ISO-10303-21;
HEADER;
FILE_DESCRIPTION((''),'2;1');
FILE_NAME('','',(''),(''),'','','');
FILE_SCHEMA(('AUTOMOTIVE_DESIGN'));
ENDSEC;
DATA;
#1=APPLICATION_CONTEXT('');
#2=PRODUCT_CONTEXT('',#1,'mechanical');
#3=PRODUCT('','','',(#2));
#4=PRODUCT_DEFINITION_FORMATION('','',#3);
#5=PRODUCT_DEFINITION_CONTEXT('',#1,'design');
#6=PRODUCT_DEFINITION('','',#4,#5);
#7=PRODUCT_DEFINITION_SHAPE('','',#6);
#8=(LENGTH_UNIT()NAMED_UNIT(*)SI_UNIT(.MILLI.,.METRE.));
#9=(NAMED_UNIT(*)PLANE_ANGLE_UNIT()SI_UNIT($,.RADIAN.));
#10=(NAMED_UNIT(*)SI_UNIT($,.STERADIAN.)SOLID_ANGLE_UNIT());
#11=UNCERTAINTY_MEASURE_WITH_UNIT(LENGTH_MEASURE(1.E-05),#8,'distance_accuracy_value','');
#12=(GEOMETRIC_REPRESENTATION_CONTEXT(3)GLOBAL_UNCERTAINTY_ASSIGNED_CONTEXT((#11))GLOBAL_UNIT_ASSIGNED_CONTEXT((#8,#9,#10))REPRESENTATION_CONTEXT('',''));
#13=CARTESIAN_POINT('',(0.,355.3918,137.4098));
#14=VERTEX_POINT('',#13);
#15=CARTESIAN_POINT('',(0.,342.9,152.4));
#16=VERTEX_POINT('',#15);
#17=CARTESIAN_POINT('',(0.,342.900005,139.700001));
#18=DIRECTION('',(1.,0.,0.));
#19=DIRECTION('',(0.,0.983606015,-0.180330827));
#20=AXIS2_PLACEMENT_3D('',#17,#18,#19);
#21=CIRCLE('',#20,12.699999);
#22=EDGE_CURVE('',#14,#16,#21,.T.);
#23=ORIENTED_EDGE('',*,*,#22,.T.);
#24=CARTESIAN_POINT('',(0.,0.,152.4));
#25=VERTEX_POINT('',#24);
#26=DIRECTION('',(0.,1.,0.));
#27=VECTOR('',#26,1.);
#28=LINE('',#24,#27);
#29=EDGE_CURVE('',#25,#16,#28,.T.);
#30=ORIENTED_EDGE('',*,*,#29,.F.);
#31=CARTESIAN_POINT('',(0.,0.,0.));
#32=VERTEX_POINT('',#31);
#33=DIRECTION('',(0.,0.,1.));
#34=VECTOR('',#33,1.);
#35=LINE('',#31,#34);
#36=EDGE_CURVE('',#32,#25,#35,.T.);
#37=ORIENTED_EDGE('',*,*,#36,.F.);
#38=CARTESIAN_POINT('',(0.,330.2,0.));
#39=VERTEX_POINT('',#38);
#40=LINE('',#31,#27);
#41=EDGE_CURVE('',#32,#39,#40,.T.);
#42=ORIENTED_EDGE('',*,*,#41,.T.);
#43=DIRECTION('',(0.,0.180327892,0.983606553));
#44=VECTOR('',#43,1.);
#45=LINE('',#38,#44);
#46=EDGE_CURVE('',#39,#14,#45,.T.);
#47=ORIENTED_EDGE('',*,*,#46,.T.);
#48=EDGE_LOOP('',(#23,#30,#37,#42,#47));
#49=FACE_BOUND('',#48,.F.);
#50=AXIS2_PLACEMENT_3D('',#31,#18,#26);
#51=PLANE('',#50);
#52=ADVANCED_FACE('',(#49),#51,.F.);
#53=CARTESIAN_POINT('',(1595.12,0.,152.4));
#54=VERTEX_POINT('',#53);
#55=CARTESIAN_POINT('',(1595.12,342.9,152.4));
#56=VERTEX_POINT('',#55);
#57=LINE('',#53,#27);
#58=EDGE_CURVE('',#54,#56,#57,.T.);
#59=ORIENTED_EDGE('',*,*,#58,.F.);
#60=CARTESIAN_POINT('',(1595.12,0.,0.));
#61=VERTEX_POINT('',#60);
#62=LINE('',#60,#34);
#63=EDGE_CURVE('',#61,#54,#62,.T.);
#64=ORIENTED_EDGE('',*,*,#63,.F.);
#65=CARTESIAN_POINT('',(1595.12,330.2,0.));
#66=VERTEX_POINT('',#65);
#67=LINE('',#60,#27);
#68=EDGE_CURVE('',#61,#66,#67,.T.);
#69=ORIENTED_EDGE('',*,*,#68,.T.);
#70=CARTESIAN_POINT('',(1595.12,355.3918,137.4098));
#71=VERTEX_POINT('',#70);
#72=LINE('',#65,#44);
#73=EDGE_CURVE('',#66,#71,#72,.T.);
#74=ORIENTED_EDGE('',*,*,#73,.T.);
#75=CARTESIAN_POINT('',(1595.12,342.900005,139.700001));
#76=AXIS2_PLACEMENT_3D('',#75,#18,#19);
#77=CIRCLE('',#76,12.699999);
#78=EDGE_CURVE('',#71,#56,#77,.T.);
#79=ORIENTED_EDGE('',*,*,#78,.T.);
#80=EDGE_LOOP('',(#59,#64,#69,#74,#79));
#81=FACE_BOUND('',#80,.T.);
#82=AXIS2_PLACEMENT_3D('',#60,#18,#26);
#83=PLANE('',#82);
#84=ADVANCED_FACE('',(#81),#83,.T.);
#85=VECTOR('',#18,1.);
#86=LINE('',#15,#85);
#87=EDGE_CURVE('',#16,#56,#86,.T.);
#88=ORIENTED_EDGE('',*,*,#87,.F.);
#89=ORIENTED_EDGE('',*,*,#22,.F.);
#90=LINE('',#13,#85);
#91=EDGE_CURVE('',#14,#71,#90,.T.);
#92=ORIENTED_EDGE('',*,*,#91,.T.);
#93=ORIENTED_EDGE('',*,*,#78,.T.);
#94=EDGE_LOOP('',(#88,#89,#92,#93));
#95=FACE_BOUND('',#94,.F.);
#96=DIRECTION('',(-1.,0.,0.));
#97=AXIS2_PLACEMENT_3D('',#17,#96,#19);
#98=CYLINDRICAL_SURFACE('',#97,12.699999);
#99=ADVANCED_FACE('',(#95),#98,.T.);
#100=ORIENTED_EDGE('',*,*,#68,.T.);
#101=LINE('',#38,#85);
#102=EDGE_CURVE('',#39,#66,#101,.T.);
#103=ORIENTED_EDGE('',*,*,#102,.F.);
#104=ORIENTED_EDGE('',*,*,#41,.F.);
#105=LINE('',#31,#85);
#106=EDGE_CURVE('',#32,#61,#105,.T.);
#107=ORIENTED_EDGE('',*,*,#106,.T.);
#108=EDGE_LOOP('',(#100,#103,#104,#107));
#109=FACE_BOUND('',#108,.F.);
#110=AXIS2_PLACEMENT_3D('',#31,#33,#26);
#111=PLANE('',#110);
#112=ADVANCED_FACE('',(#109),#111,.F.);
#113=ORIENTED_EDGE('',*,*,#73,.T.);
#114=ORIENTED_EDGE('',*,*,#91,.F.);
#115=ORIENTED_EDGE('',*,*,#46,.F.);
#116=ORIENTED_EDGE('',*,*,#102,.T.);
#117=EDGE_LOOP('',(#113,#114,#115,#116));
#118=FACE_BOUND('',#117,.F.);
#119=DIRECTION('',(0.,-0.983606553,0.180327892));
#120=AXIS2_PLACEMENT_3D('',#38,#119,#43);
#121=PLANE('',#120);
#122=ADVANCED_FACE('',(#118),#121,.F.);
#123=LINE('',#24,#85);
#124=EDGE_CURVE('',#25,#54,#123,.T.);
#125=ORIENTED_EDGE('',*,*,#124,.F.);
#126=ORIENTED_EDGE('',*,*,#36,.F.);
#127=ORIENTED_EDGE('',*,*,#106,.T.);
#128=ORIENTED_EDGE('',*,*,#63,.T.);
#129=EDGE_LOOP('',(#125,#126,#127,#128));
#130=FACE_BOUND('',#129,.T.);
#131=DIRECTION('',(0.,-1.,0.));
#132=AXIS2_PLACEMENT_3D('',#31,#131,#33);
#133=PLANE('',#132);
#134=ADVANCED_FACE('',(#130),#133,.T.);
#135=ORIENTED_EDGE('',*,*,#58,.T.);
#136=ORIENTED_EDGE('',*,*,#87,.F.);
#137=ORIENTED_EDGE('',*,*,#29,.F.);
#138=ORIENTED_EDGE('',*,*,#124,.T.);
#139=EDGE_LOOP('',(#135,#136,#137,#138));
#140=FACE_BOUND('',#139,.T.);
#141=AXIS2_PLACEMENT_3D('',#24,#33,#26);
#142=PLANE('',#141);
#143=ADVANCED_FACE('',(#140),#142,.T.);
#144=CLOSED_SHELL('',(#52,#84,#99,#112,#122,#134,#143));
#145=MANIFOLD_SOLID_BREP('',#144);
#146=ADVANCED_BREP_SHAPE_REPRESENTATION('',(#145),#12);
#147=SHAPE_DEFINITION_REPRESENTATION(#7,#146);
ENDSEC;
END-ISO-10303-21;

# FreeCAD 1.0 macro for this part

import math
import FreeCAD as App
import Part
import Sketcher
from FreeCAD import Vector
Q = App.Units.Quantity

doc = App.newDocument("Part")
body = doc.addObject("PartDesign::Body", "Body")

# Sketch on YZ plane
sketch1 = body.newObject("Sketcher::SketchObject", "Sketch")
sketch1.AttachmentSupport = (doc.getObject("YZ_Plane"), [""])
sketch1.MapMode = "FlatFace"
sketch1.addGeometry([
    Part.LineSegment(Vector(0, 152, 0), Vector(0, 0, 0)),  # 0
    Part.LineSegment(Vector(0, 0, 0), Vector(330, 0, 0)),  # 1
    Part.LineSegment(Vector(330, 0, 0), Vector(355, 137, 0)),  # 2
    Part.ArcOfCircle(Part.Circle(Vector(343, 140, 0), Vector(0, 0, 1), 13), math.radians(-10), math.radians(90)),  # 3
    Part.LineSegment(Vector(343, 152, 0), Vector(0, 152, 0)),  # 4
], False)
sketch1.addConstraint([
    Sketcher.Constraint("Coincident", 0, 2, 1, 1),
    Sketcher.Constraint("Coincident", 1, 2, 2, 1),
    Sketcher.Constraint("Tangent", 2, 2, 3, 1),
    Sketcher.Constraint("Tangent", 3, 2, 4, 1),
    Sketcher.Constraint("Coincident", 4, 2, 0, 1),
    Sketcher.Constraint("Vertical", 0),
    Sketcher.Constraint("Horizontal", 1),
    Sketcher.Constraint("Horizontal", 4),
    Sketcher.Constraint("Coincident", 0, 2, -1, 1),
    Sketcher.Constraint("Radius", 3, Q("0.5 in")),
    Sketcher.Constraint("DistanceX", 1, 1, 1, 2, Q("13 in")),
    Sketcher.Constraint("DistanceY", 0, 2, 0, 1, Q("6 in")),
    Sketcher.Constraint("DistanceX", 4, 2, 4, 1, Q("13.5 in")),
])
pad1 = body.newObject("PartDesign::Pad", "Pad")
pad1.Profile = sketch1
pad1.Length = Q("62.8 in")

doc.recompute()
